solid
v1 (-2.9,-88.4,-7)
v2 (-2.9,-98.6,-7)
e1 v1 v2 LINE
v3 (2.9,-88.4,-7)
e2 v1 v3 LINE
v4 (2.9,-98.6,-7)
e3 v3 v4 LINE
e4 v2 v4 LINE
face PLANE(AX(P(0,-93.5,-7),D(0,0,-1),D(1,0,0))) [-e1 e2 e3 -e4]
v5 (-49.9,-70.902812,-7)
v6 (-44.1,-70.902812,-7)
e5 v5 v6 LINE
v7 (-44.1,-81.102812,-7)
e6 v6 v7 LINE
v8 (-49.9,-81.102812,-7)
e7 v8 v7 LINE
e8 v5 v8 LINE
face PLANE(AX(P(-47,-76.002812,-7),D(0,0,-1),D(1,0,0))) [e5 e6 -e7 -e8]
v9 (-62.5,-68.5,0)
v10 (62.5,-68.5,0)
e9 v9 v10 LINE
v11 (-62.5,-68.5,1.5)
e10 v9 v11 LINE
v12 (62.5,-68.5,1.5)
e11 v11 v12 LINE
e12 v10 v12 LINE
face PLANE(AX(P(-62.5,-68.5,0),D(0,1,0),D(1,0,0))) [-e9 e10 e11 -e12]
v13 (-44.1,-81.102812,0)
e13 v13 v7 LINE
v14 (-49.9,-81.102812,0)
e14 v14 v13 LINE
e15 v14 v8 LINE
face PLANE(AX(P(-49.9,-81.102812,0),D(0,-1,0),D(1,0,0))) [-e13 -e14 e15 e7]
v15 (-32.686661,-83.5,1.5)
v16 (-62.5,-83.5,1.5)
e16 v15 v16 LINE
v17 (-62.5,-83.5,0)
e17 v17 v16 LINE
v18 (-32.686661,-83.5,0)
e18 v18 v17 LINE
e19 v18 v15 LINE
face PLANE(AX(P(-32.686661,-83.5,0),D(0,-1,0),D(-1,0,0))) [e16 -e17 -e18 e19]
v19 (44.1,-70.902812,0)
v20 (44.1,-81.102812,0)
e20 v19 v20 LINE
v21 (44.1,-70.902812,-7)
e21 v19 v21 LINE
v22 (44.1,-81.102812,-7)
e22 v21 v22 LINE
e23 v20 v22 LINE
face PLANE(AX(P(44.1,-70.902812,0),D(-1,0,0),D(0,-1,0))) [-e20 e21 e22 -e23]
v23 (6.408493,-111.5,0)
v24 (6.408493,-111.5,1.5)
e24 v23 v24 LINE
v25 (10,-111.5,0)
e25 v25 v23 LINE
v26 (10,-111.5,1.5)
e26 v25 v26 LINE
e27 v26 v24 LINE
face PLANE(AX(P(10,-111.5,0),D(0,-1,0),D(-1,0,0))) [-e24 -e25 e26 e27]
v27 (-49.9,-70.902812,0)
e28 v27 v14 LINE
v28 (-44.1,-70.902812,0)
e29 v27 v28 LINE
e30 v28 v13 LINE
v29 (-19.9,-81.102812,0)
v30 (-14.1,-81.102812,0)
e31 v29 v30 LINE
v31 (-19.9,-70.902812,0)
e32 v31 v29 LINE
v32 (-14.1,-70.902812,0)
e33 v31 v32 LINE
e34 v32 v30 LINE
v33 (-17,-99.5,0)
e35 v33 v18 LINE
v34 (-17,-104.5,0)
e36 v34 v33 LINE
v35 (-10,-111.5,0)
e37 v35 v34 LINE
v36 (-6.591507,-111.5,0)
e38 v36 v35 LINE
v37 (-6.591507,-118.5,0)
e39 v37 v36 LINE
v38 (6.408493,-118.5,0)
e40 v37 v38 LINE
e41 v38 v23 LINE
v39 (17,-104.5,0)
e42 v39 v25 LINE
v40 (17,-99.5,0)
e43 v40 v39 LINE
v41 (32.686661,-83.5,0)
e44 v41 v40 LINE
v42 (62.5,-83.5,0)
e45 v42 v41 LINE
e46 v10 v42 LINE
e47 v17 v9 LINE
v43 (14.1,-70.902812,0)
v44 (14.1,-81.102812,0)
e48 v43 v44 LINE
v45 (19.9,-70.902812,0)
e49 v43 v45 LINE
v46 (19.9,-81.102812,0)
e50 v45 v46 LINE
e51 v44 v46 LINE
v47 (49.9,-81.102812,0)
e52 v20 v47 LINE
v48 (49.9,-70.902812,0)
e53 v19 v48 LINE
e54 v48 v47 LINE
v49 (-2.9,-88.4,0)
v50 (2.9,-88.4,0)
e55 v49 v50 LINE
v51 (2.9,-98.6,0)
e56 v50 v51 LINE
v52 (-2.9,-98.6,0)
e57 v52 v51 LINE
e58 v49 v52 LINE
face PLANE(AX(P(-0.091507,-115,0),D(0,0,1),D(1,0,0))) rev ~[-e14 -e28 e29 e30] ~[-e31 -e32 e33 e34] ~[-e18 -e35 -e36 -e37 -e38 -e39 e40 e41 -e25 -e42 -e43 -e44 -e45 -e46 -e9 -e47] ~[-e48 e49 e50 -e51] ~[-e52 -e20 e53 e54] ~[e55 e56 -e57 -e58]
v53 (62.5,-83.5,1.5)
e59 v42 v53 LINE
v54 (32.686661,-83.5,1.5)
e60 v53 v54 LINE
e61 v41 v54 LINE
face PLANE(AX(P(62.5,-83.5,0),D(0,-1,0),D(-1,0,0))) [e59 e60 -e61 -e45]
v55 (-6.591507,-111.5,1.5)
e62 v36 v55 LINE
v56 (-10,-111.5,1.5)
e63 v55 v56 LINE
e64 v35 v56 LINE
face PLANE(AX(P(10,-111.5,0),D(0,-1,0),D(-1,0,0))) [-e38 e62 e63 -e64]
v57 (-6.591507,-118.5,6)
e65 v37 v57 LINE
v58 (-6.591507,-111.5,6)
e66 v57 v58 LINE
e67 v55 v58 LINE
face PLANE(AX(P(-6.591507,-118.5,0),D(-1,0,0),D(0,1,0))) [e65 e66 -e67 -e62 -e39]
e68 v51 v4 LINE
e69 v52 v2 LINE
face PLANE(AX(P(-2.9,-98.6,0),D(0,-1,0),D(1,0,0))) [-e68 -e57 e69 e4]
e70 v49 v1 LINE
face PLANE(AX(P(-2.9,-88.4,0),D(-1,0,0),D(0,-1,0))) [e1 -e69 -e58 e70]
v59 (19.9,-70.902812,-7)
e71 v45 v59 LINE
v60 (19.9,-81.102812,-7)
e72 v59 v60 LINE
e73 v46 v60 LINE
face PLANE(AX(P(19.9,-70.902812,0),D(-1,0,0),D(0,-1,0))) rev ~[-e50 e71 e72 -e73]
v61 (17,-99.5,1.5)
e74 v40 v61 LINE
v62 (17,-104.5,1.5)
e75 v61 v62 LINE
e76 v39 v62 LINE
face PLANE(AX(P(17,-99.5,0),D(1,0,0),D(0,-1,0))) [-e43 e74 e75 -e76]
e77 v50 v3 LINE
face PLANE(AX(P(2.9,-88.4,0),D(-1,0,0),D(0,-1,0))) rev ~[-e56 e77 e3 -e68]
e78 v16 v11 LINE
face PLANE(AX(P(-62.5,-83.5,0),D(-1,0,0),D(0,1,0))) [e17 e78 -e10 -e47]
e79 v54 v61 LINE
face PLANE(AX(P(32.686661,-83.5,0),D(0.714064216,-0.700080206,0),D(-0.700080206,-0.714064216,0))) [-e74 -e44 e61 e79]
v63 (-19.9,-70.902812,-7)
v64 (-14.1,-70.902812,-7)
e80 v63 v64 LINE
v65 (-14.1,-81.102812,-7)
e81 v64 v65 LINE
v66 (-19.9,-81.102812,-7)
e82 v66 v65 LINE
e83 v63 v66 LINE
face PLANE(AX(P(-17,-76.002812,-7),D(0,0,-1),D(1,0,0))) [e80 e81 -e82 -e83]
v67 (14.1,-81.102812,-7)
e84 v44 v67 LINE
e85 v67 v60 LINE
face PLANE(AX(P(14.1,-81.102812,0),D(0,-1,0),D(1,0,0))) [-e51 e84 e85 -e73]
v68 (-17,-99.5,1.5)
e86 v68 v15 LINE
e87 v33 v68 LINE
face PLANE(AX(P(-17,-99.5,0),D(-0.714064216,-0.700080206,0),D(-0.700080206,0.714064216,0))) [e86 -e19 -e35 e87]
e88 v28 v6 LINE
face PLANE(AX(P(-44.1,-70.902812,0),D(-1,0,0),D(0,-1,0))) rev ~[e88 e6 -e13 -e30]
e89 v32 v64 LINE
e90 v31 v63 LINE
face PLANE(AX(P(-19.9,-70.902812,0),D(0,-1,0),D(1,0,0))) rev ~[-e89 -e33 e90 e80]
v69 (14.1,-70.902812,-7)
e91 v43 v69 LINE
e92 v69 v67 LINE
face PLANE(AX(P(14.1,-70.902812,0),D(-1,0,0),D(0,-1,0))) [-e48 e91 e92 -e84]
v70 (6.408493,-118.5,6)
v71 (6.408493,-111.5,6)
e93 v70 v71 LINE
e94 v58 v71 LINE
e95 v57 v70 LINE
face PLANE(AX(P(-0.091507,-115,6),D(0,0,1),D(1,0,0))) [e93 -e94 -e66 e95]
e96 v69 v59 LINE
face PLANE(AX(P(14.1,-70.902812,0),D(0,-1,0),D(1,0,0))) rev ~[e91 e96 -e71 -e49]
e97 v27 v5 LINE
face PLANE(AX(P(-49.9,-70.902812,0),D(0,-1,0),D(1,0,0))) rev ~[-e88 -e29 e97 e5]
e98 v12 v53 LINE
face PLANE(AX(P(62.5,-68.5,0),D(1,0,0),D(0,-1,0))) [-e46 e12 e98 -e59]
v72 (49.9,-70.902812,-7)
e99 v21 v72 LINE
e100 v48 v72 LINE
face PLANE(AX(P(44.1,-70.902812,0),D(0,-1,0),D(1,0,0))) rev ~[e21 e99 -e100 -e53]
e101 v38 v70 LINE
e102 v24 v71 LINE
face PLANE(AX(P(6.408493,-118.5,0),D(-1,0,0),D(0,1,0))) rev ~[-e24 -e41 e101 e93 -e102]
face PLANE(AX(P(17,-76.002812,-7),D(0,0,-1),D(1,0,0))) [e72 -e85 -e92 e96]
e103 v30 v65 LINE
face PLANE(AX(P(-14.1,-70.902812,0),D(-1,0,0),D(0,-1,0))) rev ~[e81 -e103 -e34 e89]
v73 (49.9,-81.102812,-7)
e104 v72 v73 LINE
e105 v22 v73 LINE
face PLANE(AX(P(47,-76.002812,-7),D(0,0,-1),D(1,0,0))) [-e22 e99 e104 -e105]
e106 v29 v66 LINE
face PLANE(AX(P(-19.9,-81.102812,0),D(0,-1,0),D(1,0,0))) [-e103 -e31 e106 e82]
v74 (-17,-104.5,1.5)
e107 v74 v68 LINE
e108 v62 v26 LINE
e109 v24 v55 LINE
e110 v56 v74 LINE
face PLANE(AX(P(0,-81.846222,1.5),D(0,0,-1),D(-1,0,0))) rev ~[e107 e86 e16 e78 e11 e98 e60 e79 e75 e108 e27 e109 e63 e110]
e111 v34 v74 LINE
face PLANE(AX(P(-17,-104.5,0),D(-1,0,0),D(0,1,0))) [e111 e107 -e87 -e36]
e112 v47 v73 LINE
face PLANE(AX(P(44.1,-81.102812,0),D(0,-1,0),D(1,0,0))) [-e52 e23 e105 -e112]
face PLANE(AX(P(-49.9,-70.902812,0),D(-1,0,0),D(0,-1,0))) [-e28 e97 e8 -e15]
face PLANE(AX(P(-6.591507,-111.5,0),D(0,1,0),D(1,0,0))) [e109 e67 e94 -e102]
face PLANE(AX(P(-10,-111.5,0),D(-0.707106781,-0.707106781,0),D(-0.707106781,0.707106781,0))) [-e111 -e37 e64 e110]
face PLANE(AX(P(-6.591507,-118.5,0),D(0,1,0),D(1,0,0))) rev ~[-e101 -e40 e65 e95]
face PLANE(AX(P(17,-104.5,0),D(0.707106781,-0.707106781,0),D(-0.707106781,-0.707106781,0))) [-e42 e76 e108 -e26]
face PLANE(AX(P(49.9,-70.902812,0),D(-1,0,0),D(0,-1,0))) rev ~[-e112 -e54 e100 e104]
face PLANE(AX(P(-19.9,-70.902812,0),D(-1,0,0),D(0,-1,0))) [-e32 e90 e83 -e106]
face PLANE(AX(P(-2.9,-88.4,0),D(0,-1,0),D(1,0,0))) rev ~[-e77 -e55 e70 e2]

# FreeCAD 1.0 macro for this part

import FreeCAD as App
import Part
import Sketcher
from FreeCAD import Vector
Q = App.Units.Quantity


def add_polygon(sketch, points):
    """Adds a closed chain of lines whose ends are joined by coincident constraints."""
    first, n = sketch.GeometryCount, len(points)
    for a, b in zip(points, points[1:] + points[:1]):
        sketch.addGeometry(Part.LineSegment(App.Vector(*a, 0), App.Vector(*b, 0)), False)
    for i in range(n):
        sketch.addConstraint(Sketcher.Constraint("Coincident", first + i, 2, first + (i + 1) % n, 1))

doc = App.newDocument("Part")
body = doc.addObject("PartDesign::Body", "Body")

# Sketch on XY plane
sketch1 = body.newObject("Sketcher::SketchObject", "Sketch")
sketch1.AttachmentSupport = (doc.getObject("XY_Plane"), [""])
sketch1.MapMode = "FlatFace"
add_polygon(sketch1, [(62, 25), (-62, 25), (-62, 10), (-33, 10), (-17, -6), (-17, -11), (-10, -18), (10, -18), (17, -11), (17, -6), (33, 10), (62, 10)])  # lines 0-11
sketch1.addConstraint([
    Sketcher.Constraint("Horizontal", 0),
    Sketcher.Constraint("Vertical", 1),
    Sketcher.Constraint("Horizontal", 2),
    Sketcher.Constraint("Vertical", 4),
    Sketcher.Constraint("Horizontal", 6),
    Sketcher.Constraint("Vertical", 8),
    Sketcher.Constraint("Horizontal", 10),
    Sketcher.Constraint("Vertical", 11),
    Sketcher.Constraint("Symmetric", 4, 2, 7, 2, -2),
    Sketcher.Constraint("Symmetric", 2, 2, 9, 2, -2),
    Sketcher.Constraint("Perpendicular", 5, 7),
    Sketcher.Constraint("Horizontal", 3, 2, 8, 2),
    Sketcher.Constraint("Equal", 2, 10),
    Sketcher.Constraint("Equal", 5, 7),
    Sketcher.Constraint("DistanceX", 0, 2, 0, 1, Q("125 mm")),
    Sketcher.Constraint("DistanceX", 6, 1, 6, 2, Q("20 mm")),
    Sketcher.Constraint("DistanceY", 1, 2, 1, 1, Q("15 mm")),
    Sketcher.Constraint("DistanceY", 4, 2, 4, 1, Q("5 mm")),
    Sketcher.Constraint("DistanceY", -1, 1, 0, 2, Q("25 mm")),
    Sketcher.Constraint("DistanceX", 3, 2, -1, 1, Q("17 mm")),
    Sketcher.Constraint("DistanceY", 3, 2, -1, 1, Q("6 mm")),
    Sketcher.Constraint("DistanceX", 2, 1, 2, 2, Q("29.813339 mm")),
])
pad1 = body.newObject("PartDesign::Pad", "Pad")
pad1.Profile = sketch1
pad1.Length = 1.5

# Sketch on XY plane
sketch2 = body.newObject("Sketcher::SketchObject", "Sketch001")
sketch2.AttachmentSupport = (doc.getObject("XY_Plane"), [""])
sketch2.MapMode = "FlatFace"
add_polygon(sketch2, [(-3, -5), (-3, 5), (3, 5), (3, -5)])  # lines 0-3
add_polygon(sketch2, [(-50, 12), (-50, 23), (-44, 23), (-44, 12)])  # lines 4-7
add_polygon(sketch2, [(-20, 12), (-20, 23), (-14, 23), (-14, 12)])  # lines 8-11
add_polygon(sketch2, [(14, 12), (14, 23), (20, 23), (20, 12)])  # lines 12-15
add_polygon(sketch2, [(44, 12), (44, 23), (50, 23), (50, 12)])  # lines 16-19
sketch2.addConstraint([
    Sketcher.Constraint("Vertical", 0),
    Sketcher.Constraint("Horizontal", 1),
    Sketcher.Constraint("Vertical", 2),
    Sketcher.Constraint("Horizontal", 3),
    Sketcher.Constraint("Vertical", 4),
    Sketcher.Constraint("Horizontal", 5),
    Sketcher.Constraint("Vertical", 6),
    Sketcher.Constraint("Horizontal", 7),
    Sketcher.Constraint("Vertical", 8),
    Sketcher.Constraint("Horizontal", 9),
    Sketcher.Constraint("Vertical", 10),
    Sketcher.Constraint("Horizontal", 11),
    Sketcher.Constraint("Vertical", 12),
    Sketcher.Constraint("Horizontal", 13),
    Sketcher.Constraint("Vertical", 14),
    Sketcher.Constraint("Horizontal", 15),
    Sketcher.Constraint("Vertical", 16),
    Sketcher.Constraint("Horizontal", 17),
    Sketcher.Constraint("Vertical", 18),
    Sketcher.Constraint("Horizontal", 19),
    Sketcher.Constraint("Symmetric", 0, 2, 2, 2, -1, 1),
    Sketcher.Constraint("Symmetric", 9, 2, 12, 2, -2),
    Sketcher.Constraint("Symmetric", 11, 2, 14, 2, -2),
    Sketcher.Constraint("Symmetric", 5, 2, 16, 2, -2),
    Sketcher.Constraint("Symmetric", 7, 2, 18, 2, -2),
    Sketcher.Constraint("Horizontal", 5, 2, 8, 2),
    Sketcher.Constraint("Horizontal", 7, 2, 10, 2),
    Sketcher.Constraint("Equal", 3, 5),
    Sketcher.Constraint("Equal", 7, 9),
    Sketcher.Constraint("Equal", 2, 4),
    Sketcher.Constraint("DistanceX", 1, 1, 1, 2, Q("5.8 mm")),
    Sketcher.Constraint("DistanceY", 0, 1, 0, 2, Q("10.2 mm")),
    Sketcher.Constraint("DistanceX", 4, 2, 0, 2, Q("47 mm")),
    Sketcher.Constraint("DistanceX", 8, 2, 0, 2, Q("17 mm")),
    Sketcher.Constraint("DistanceY", 0, 2, 4, 2, Q("17.497188 mm")),
])
pad2 = body.newObject("PartDesign::Pad", "Pad001")
pad2.Profile = sketch2
pad2.Length = 7
pad2.Reversed = True

# Sketch on XY plane
sketch3 = body.newObject("Sketcher::SketchObject", "Sketch002")
sketch3.AttachmentSupport = (doc.getObject("XY_Plane"), [""])
sketch3.MapMode = "FlatFace"
add_polygon(sketch3, [(-7, -18), (-7, -25), (6, -25), (6, -18)])  # lines 0-3
sketch3.addConstraint([
    Sketcher.Constraint("Vertical", 0),
    Sketcher.Constraint("Horizontal", 1),
    Sketcher.Constraint("Vertical", 2),
    Sketcher.Constraint("Horizontal", 3),
    Sketcher.Constraint("DistanceX", 1, 1, 1, 2, Q("13 mm")),
    Sketcher.Constraint("DistanceY", 0, 2, 0, 1, Q("7 mm")),
    Sketcher.Constraint("DistanceY", 0, 2, -1, 1, Q("25 mm")),
    Sketcher.Constraint("DistanceX", 0, 2, -1, 1, Q("6.591507 mm")),
])
pad3 = body.newObject("PartDesign::Pad", "Pad002")
pad3.Profile = sketch3
pad3.Length = 6
body2 = doc.addObject("PartDesign::Body", "Body001")
doc.recompute()

body.Placement = App.Placement(Vector(0, -93.5, 0), App.Rotation(Vector(0, 0, 1), 0))
boolean = body2.newObject("PartDesign::Boolean", "Boolean")
boolean.Type = "Fuse"
boolean.addObjects([body])

doc.recompute()
